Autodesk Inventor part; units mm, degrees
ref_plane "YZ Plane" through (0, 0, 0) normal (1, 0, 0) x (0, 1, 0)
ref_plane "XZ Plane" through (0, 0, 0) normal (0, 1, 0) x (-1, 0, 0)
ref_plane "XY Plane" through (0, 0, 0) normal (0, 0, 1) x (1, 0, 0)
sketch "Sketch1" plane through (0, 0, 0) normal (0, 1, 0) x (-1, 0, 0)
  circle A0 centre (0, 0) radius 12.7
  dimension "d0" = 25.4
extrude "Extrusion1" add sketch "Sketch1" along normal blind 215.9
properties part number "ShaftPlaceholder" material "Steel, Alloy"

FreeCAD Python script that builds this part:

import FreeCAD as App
import Part
import Sketcher

V = App.Vector
Q = App.Units.Quantity

doc = App.newDocument("Part")
params = doc.addObject("Spreadsheet::Sheet", "Params")
for row, (alias, value) in enumerate([
    ("sketch1_diameter", "1 in"),
    ("pad1_length", "8.5 in"),
], start=1):
    params.set(f"A{row}", alias)
    params.set(f"B{row}", "=" + value)
    params.setAlias(f"B{row}", alias)

body = doc.addObject("PartDesign::Body", "Body")

sketch1 = doc.addObject("Sketcher::SketchObject", "Sketch")
body.addObject(sketch1)
sketch1.AttachmentSupport = (doc.XZ_Plane, [""])
sketch1.MapMode = "FlatFace"
sketch1.addGeometry(Part.Circle(V(0, 0, 0), V(0, 0, 1), 13), False)
sketch1.addConstraint(Sketcher.Constraint("Coincident", 0, 3, -1, 1))
sketch1.addConstraint(Sketcher.Constraint("Diameter", 0, Q("1 in")))
sketch1.setExpression("Constraints[1]", "Params.sketch1_diameter")
pad1 = doc.addObject("PartDesign::Pad", "Pad")
body.addObject(pad1)
pad1.Profile = sketch1
pad1.setExpression("Length", "Params.pad1_length")
pad1.Reversed = True

doc.recompute()
